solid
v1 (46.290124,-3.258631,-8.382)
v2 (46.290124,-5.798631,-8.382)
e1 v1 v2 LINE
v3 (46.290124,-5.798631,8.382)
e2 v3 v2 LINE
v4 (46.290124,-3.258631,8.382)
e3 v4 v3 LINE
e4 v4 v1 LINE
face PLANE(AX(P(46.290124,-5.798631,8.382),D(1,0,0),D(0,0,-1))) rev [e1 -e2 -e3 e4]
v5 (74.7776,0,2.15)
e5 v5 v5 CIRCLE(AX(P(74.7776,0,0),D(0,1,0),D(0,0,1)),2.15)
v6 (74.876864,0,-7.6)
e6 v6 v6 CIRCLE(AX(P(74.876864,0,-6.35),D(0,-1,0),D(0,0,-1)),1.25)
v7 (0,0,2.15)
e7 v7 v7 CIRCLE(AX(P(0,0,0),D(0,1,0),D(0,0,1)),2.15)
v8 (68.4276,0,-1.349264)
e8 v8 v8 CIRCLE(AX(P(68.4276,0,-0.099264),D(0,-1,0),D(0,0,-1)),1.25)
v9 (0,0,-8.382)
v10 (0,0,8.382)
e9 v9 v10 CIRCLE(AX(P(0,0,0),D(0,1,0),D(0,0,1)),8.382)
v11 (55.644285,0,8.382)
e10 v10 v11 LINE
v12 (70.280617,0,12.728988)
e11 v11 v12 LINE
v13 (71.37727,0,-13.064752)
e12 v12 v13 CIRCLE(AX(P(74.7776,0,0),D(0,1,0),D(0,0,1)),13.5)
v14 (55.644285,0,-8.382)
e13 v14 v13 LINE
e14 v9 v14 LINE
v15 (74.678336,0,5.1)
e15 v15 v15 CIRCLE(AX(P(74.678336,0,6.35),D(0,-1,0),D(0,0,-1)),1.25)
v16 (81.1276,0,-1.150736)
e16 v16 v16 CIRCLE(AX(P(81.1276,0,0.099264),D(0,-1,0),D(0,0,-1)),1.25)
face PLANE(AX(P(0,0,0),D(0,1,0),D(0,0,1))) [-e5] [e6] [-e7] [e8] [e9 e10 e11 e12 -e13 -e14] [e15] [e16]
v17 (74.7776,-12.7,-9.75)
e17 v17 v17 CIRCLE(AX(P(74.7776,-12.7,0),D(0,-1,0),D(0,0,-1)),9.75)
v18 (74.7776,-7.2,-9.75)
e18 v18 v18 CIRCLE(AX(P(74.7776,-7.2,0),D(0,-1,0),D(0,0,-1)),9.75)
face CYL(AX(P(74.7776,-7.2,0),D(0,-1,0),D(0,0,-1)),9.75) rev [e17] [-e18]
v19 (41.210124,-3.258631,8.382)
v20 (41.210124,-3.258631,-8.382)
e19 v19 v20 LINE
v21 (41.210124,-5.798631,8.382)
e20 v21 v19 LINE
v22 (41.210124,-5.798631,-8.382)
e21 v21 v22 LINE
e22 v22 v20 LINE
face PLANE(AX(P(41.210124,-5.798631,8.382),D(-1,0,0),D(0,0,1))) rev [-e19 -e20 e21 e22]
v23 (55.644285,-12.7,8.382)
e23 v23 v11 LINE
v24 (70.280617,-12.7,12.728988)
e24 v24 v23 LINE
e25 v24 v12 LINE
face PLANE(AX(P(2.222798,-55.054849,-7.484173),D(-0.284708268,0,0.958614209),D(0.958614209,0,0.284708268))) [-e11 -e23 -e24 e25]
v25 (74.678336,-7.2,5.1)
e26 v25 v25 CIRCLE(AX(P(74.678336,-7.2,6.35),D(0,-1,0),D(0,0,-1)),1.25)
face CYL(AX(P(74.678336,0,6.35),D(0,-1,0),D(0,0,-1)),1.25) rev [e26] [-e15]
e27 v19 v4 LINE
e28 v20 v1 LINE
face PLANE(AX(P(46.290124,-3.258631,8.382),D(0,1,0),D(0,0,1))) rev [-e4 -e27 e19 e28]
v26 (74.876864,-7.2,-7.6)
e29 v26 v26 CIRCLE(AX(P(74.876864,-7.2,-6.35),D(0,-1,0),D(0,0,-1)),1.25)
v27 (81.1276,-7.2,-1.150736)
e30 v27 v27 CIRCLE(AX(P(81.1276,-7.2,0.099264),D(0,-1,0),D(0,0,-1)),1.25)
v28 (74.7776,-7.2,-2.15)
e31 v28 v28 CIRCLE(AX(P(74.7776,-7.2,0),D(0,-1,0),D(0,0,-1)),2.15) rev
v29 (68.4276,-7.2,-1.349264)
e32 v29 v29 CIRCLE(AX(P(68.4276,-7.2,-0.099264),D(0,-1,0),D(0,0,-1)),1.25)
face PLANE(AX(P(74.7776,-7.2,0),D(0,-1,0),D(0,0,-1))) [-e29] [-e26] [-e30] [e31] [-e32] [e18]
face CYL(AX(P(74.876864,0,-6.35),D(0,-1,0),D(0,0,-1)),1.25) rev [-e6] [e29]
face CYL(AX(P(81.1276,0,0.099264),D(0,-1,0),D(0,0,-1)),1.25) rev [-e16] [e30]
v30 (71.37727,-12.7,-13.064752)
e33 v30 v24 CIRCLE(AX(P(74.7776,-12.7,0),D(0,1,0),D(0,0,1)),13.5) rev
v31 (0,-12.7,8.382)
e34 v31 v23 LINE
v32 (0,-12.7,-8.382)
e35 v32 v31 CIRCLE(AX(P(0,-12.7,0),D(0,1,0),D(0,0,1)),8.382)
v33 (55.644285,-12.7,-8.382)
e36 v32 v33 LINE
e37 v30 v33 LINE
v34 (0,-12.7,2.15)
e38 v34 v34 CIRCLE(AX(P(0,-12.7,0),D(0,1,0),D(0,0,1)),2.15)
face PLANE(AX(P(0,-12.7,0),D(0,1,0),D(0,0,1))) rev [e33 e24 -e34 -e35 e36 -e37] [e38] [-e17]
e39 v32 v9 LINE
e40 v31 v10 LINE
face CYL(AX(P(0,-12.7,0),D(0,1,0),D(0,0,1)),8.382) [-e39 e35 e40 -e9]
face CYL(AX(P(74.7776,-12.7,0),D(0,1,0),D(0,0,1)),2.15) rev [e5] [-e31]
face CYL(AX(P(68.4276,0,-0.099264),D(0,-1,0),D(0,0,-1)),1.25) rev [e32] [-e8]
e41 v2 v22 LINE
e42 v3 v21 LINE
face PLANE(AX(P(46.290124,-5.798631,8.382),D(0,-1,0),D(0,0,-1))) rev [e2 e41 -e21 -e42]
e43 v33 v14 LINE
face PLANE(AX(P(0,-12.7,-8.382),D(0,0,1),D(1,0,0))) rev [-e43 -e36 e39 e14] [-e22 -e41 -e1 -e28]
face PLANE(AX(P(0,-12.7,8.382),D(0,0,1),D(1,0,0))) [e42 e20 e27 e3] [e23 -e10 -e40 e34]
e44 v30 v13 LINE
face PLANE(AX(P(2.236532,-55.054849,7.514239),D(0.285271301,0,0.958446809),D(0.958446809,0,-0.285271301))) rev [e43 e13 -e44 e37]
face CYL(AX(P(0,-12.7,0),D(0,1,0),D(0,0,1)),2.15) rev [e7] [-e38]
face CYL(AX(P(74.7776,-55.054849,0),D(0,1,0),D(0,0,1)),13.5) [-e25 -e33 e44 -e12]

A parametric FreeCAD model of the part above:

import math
import FreeCAD as App
import Part
import Sketcher
Q = App.Units.Quantity


def add_polygon(sketch, points):
    """Adds a closed chain of lines whose ends are joined by coincident constraints."""
    first, n = sketch.GeometryCount, len(points)
    for a, b in zip(points, points[1:] + points[:1]):
        sketch.addGeometry(Part.LineSegment(App.Vector(*a, 0), App.Vector(*b, 0)), False)
    for i in range(n):
        sketch.addConstraint(Sketcher.Constraint("Coincident", first + i, 2, first + (i + 1) % n, 1))

doc = App.newDocument("Part")
body = doc.addObject("PartDesign::Body", "Body")

# Sketch on XZ plane
sketch1 = doc.addObject("Sketcher::SketchObject", "Sketch")
body.addObject(sketch1)
sketch1.AttachmentSupport = (doc.XZ_Plane, [""])
sketch1.MapMode = "FlatFace"
sketch1.addGeometry([
    Part.LineSegment(App.Vector(74.8, -8.4, 0), App.Vector(0, -8.4, 0)),  # 0
    Part.ArcOfCircle(Part.Circle(App.Vector(0, 0, 0), App.Vector(0, 0, 1), 8.4), math.radians(90), math.radians(270)),  # 1
    Part.LineSegment(App.Vector(0, 8.4, 0), App.Vector(74.8, 8.4, 0)),  # 2
    Part.ArcOfCircle(Part.Circle(App.Vector(74.8, 0, 0), App.Vector(0, 0, 1), 8.4), math.radians(-90), math.radians(90)),  # 3
    Part.Circle(App.Vector(74.8, 0, 0), App.Vector(0, 0, 1), 2.1),  # 4
    Part.Circle(App.Vector(0, 0, 0), App.Vector(0, 0, 1), 2.1),  # 5
], False)
sketch1.addConstraint([
    Sketcher.Constraint("Tangent", 0, 2, 1, 2),
    Sketcher.Constraint("Tangent", 1, 1, 2, 1),
    Sketcher.Constraint("Tangent", 2, 2, 3, 2),
    Sketcher.Constraint("Tangent", 3, 1, 0, 1),
    Sketcher.Constraint("Horizontal", 0),
    Sketcher.Constraint("Horizontal", 2),
    Sketcher.Constraint("Coincident", 1, 3, -1, 1),
    Sketcher.Constraint("Coincident", 5, 3, -1, 1),
    Sketcher.Constraint("Coincident", 4, 3, 3, 3),
    Sketcher.Constraint("Equal", 4, 5),
    Sketcher.Constraint("Diameter", 4, Q("4.3 mm")),
    Sketcher.Constraint("Radius", 1, Q("8.382 mm")),
    Sketcher.Constraint("DistanceX", 0, 2, 0, 1, Q("74.7776 mm")),
])
pad1 = doc.addObject("PartDesign::Pad", "Pad")
body.addObject(pad1)
pad1.Profile = sketch1
pad1.Length = 12.7

# Sketch on XY plane
sketch2 = doc.addObject("Sketcher::SketchObject", "Sketch001")
body.addObject(sketch2)
sketch2.AttachmentSupport = (doc.XY_Plane, [""])
sketch2.MapMode = "FlatFace"
sketch2.AttachmentOffset = App.Placement(App.Vector(0, 0, -8.382), App.Rotation())
add_polygon(sketch2, [(46.3, -3.3), (46.3, -5.8), (41.2, -5.8), (41.2, -3.3)])  # lines 0-3
sketch2.addConstraint([
    Sketcher.Constraint("Vertical", 0),
    Sketcher.Constraint("Horizontal", 1),
    Sketcher.Constraint("Vertical", 2),
    Sketcher.Constraint("Horizontal", 3),
    Sketcher.Constraint("DistanceX", 1, 2, 1, 1, Q("5.08 mm")),
    Sketcher.Constraint("DistanceY", 0, 2, 0, 1, Q("2.54 mm")),
    Sketcher.Constraint("DistanceY", 0, 2, -1, 1, Q("5.798631 mm")),
    Sketcher.Constraint("DistanceX", -1, 1, 0, 2, Q("46.290124 mm")),
])
pocket1 = doc.addObject("PartDesign::Pocket", "Pocket")
body.addObject(pocket1)
pocket1.Profile = sketch2
pocket1.Type = "ThroughAll"
pocket1.Midplane = True

# Sketch on XZ plane
sketch3 = doc.addObject("Sketcher::SketchObject", "Sketch002")
body.addObject(sketch3)
sketch3.AttachmentSupport = (doc.XZ_Plane, [""])
sketch3.MapMode = "FlatFace"
sketch3.addGeometry([
    Part.LineSegment(App.Vector(71.4, -13.1, 0), App.Vector(70.5, -12.8, 0)),  # 0
    Part.LineSegment(App.Vector(70.5, -12.8, 0), App.Vector(55.6, -8.4, 0)),  # 1
    Part.LineSegment(App.Vector(55.6, -8.4, 0), App.Vector(74.8, -8.4, 0)),  # 2
    Part.ArcOfCircle(Part.Circle(App.Vector(74.8, 0, 0), App.Vector(0, 0, 1), 8.4), math.radians(-90), math.radians(90)),  # 3
    Part.LineSegment(App.Vector(74.8, 8.4, 0), App.Vector(55.6, 8.4, 0)),  # 4
    Part.LineSegment(App.Vector(55.6, 8.4, 0), App.Vector(70.3, 12.7, 0)),  # 5
    Part.ArcOfCircle(Part.Circle(App.Vector(74.8, 0, 0), App.Vector(0, 0, 1), 13.5), math.radians(0), math.radians(109)),  # 6
    Part.ArcOfCircle(Part.Circle(App.Vector(74.8, 0, 0), App.Vector(0, 0, 1), 13.5), math.radians(-105), math.radians(0)),  # 7
], False)
sketch3.addConstraint([
    Sketcher.Constraint("Coincident", 0, 2, 1, 1),
    Sketcher.Constraint("Coincident", 1, 2, 2, 1),
    Sketcher.Constraint("Tangent", 2, 2, 3, 1),
    Sketcher.Constraint("Tangent", 3, 2, 4, 1),
    Sketcher.Constraint("Coincident", 4, 2, 5, 1),
    Sketcher.Constraint("Coincident", 5, 2, 6, 2),
    Sketcher.Constraint("Tangent", 6, 1, 7, 2),
    Sketcher.Constraint("Coincident", 7, 1, 0, 1),
    Sketcher.Constraint("Horizontal", 2),
    Sketcher.Constraint("Horizontal", 4),
    Sketcher.Constraint("Coincident", 6, 3, 3, 3),
    Sketcher.Constraint("Equal", 6, 7),
    Sketcher.Constraint("Symmetric", 1, 2, 4, 2, -1),
    Sketcher.Constraint("PointOnObject", 6, 1, -1),
    Sketcher.Constraint("Parallel", 0, 1),
    Sketcher.Constraint("Radius", 6, Q("13.5 mm")),
    Sketcher.Constraint("Radius", 3, Q("8.382 mm")),
    Sketcher.Constraint("DistanceX", -1, 1, 3, 3, Q("74.7776 mm")),
    Sketcher.Constraint("Distance", 5, Q("15.268219 mm")),
    Sketcher.Constraint("DistanceX", 2, 1, 2, 2, Q("19.133315 mm")),
    Sketcher.Constraint("DistanceY", 0, 2, -1, 1, Q("12.797759 mm")),
    Sketcher.Constraint("DistanceX", -1, 1, 7, 1, Q("71.37727 mm")),
])
pad2 = doc.addObject("PartDesign::Pad", "Pad001")
body.addObject(pad2)
pad2.Profile = sketch3
pad2.Length = 12.7

# Sketch on XZ plane
sketch4 = doc.addObject("Sketcher::SketchObject", "Sketch003")
body.addObject(sketch4)
sketch4.AttachmentSupport = (doc.XZ_Plane, [""])
sketch4.MapMode = "FlatFace"
sketch4.AttachmentOffset = App.Placement(App.Vector(0, 0, 12.7), App.Rotation())
sketch4.addGeometry(Part.Circle(App.Vector(75, 0, 0), App.Vector(0, 0, 1), 10), False)
sketch4.addConstraint([
    Sketcher.Constraint("PointOnObject", 0, 3, -1),
    Sketcher.Constraint("Diameter", 0, Q("19.5 mm")),
    Sketcher.Constraint("DistanceX", -1, 1, 0, 3, Q("74.7776 mm")),
])
pocket2 = doc.addObject("PartDesign::Pocket", "Pocket001")
body.addObject(pocket2)
pocket2.Profile = sketch4
pocket2.Length = 5.5

# Sketch on XZ plane
sketch5 = doc.addObject("Sketcher::SketchObject", "Sketch004")
body.addObject(sketch5)
sketch5.AttachmentSupport = (doc.XZ_Plane, [""])
sketch5.MapMode = "FlatFace"
sketch5.AttachmentOffset = App.Placement(App.Vector(0, 0, 7.2), App.Rotation())
sketch5.addGeometry([
    Part.Circle(App.Vector(74.9, -6.3, 0), App.Vector(0, 0, 1), 1.2),
    Part.Circle(App.Vector(68.4, -0.1, 0), App.Vector(0, 0, 1), 1.2),
    Part.Circle(App.Vector(74.7, 6.3, 0), App.Vector(0, 0, 1), 1.2),
    Part.Circle(App.Vector(81.1, 0.1, 0), App.Vector(0, 0, 1), 1.2),
], False)
sketch5.addConstraint([
    Sketcher.Constraint("Equal", 0, 1),
    Sketcher.Constraint("Equal", 1, 2),
    Sketcher.Constraint("Equal", 2, 3),
    Sketcher.Constraint("Diameter", 0, Q("2.5 mm")),
    Sketcher.Constraint("DistanceY", 0, 3, 2, 3, Q("12.7 mm")),
    Sketcher.Constraint("DistanceX", 1, 3, 3, 3, Q("12.7 mm")),
    Sketcher.Constraint("DistanceY", 0, 3, -1, 1, Q("6.35 mm")),
    Sketcher.Constraint("DistanceX", -1, 1, 1, 3, Q("68.4276 mm")),
    Sketcher.Constraint("DistanceX", -1, 1, 0, 3, Q("74.876864 mm")),
    Sketcher.Constraint("DistanceY", 1, 3, -1, 1, Q("0.099264 mm")),
    Sketcher.Constraint("DistanceX", -1, 1, 2, 3, Q("74.678336 mm")),
    Sketcher.Constraint("DistanceY", -1, 1, 3, 3, Q("0.099264 mm")),
])
pocket3 = doc.addObject("PartDesign::Pocket", "Pocket002")
body.addObject(pocket3)
pocket3.Profile = sketch5
pocket3.Type = "ThroughAll"
pocket3.Midplane = True

doc.recompute()
